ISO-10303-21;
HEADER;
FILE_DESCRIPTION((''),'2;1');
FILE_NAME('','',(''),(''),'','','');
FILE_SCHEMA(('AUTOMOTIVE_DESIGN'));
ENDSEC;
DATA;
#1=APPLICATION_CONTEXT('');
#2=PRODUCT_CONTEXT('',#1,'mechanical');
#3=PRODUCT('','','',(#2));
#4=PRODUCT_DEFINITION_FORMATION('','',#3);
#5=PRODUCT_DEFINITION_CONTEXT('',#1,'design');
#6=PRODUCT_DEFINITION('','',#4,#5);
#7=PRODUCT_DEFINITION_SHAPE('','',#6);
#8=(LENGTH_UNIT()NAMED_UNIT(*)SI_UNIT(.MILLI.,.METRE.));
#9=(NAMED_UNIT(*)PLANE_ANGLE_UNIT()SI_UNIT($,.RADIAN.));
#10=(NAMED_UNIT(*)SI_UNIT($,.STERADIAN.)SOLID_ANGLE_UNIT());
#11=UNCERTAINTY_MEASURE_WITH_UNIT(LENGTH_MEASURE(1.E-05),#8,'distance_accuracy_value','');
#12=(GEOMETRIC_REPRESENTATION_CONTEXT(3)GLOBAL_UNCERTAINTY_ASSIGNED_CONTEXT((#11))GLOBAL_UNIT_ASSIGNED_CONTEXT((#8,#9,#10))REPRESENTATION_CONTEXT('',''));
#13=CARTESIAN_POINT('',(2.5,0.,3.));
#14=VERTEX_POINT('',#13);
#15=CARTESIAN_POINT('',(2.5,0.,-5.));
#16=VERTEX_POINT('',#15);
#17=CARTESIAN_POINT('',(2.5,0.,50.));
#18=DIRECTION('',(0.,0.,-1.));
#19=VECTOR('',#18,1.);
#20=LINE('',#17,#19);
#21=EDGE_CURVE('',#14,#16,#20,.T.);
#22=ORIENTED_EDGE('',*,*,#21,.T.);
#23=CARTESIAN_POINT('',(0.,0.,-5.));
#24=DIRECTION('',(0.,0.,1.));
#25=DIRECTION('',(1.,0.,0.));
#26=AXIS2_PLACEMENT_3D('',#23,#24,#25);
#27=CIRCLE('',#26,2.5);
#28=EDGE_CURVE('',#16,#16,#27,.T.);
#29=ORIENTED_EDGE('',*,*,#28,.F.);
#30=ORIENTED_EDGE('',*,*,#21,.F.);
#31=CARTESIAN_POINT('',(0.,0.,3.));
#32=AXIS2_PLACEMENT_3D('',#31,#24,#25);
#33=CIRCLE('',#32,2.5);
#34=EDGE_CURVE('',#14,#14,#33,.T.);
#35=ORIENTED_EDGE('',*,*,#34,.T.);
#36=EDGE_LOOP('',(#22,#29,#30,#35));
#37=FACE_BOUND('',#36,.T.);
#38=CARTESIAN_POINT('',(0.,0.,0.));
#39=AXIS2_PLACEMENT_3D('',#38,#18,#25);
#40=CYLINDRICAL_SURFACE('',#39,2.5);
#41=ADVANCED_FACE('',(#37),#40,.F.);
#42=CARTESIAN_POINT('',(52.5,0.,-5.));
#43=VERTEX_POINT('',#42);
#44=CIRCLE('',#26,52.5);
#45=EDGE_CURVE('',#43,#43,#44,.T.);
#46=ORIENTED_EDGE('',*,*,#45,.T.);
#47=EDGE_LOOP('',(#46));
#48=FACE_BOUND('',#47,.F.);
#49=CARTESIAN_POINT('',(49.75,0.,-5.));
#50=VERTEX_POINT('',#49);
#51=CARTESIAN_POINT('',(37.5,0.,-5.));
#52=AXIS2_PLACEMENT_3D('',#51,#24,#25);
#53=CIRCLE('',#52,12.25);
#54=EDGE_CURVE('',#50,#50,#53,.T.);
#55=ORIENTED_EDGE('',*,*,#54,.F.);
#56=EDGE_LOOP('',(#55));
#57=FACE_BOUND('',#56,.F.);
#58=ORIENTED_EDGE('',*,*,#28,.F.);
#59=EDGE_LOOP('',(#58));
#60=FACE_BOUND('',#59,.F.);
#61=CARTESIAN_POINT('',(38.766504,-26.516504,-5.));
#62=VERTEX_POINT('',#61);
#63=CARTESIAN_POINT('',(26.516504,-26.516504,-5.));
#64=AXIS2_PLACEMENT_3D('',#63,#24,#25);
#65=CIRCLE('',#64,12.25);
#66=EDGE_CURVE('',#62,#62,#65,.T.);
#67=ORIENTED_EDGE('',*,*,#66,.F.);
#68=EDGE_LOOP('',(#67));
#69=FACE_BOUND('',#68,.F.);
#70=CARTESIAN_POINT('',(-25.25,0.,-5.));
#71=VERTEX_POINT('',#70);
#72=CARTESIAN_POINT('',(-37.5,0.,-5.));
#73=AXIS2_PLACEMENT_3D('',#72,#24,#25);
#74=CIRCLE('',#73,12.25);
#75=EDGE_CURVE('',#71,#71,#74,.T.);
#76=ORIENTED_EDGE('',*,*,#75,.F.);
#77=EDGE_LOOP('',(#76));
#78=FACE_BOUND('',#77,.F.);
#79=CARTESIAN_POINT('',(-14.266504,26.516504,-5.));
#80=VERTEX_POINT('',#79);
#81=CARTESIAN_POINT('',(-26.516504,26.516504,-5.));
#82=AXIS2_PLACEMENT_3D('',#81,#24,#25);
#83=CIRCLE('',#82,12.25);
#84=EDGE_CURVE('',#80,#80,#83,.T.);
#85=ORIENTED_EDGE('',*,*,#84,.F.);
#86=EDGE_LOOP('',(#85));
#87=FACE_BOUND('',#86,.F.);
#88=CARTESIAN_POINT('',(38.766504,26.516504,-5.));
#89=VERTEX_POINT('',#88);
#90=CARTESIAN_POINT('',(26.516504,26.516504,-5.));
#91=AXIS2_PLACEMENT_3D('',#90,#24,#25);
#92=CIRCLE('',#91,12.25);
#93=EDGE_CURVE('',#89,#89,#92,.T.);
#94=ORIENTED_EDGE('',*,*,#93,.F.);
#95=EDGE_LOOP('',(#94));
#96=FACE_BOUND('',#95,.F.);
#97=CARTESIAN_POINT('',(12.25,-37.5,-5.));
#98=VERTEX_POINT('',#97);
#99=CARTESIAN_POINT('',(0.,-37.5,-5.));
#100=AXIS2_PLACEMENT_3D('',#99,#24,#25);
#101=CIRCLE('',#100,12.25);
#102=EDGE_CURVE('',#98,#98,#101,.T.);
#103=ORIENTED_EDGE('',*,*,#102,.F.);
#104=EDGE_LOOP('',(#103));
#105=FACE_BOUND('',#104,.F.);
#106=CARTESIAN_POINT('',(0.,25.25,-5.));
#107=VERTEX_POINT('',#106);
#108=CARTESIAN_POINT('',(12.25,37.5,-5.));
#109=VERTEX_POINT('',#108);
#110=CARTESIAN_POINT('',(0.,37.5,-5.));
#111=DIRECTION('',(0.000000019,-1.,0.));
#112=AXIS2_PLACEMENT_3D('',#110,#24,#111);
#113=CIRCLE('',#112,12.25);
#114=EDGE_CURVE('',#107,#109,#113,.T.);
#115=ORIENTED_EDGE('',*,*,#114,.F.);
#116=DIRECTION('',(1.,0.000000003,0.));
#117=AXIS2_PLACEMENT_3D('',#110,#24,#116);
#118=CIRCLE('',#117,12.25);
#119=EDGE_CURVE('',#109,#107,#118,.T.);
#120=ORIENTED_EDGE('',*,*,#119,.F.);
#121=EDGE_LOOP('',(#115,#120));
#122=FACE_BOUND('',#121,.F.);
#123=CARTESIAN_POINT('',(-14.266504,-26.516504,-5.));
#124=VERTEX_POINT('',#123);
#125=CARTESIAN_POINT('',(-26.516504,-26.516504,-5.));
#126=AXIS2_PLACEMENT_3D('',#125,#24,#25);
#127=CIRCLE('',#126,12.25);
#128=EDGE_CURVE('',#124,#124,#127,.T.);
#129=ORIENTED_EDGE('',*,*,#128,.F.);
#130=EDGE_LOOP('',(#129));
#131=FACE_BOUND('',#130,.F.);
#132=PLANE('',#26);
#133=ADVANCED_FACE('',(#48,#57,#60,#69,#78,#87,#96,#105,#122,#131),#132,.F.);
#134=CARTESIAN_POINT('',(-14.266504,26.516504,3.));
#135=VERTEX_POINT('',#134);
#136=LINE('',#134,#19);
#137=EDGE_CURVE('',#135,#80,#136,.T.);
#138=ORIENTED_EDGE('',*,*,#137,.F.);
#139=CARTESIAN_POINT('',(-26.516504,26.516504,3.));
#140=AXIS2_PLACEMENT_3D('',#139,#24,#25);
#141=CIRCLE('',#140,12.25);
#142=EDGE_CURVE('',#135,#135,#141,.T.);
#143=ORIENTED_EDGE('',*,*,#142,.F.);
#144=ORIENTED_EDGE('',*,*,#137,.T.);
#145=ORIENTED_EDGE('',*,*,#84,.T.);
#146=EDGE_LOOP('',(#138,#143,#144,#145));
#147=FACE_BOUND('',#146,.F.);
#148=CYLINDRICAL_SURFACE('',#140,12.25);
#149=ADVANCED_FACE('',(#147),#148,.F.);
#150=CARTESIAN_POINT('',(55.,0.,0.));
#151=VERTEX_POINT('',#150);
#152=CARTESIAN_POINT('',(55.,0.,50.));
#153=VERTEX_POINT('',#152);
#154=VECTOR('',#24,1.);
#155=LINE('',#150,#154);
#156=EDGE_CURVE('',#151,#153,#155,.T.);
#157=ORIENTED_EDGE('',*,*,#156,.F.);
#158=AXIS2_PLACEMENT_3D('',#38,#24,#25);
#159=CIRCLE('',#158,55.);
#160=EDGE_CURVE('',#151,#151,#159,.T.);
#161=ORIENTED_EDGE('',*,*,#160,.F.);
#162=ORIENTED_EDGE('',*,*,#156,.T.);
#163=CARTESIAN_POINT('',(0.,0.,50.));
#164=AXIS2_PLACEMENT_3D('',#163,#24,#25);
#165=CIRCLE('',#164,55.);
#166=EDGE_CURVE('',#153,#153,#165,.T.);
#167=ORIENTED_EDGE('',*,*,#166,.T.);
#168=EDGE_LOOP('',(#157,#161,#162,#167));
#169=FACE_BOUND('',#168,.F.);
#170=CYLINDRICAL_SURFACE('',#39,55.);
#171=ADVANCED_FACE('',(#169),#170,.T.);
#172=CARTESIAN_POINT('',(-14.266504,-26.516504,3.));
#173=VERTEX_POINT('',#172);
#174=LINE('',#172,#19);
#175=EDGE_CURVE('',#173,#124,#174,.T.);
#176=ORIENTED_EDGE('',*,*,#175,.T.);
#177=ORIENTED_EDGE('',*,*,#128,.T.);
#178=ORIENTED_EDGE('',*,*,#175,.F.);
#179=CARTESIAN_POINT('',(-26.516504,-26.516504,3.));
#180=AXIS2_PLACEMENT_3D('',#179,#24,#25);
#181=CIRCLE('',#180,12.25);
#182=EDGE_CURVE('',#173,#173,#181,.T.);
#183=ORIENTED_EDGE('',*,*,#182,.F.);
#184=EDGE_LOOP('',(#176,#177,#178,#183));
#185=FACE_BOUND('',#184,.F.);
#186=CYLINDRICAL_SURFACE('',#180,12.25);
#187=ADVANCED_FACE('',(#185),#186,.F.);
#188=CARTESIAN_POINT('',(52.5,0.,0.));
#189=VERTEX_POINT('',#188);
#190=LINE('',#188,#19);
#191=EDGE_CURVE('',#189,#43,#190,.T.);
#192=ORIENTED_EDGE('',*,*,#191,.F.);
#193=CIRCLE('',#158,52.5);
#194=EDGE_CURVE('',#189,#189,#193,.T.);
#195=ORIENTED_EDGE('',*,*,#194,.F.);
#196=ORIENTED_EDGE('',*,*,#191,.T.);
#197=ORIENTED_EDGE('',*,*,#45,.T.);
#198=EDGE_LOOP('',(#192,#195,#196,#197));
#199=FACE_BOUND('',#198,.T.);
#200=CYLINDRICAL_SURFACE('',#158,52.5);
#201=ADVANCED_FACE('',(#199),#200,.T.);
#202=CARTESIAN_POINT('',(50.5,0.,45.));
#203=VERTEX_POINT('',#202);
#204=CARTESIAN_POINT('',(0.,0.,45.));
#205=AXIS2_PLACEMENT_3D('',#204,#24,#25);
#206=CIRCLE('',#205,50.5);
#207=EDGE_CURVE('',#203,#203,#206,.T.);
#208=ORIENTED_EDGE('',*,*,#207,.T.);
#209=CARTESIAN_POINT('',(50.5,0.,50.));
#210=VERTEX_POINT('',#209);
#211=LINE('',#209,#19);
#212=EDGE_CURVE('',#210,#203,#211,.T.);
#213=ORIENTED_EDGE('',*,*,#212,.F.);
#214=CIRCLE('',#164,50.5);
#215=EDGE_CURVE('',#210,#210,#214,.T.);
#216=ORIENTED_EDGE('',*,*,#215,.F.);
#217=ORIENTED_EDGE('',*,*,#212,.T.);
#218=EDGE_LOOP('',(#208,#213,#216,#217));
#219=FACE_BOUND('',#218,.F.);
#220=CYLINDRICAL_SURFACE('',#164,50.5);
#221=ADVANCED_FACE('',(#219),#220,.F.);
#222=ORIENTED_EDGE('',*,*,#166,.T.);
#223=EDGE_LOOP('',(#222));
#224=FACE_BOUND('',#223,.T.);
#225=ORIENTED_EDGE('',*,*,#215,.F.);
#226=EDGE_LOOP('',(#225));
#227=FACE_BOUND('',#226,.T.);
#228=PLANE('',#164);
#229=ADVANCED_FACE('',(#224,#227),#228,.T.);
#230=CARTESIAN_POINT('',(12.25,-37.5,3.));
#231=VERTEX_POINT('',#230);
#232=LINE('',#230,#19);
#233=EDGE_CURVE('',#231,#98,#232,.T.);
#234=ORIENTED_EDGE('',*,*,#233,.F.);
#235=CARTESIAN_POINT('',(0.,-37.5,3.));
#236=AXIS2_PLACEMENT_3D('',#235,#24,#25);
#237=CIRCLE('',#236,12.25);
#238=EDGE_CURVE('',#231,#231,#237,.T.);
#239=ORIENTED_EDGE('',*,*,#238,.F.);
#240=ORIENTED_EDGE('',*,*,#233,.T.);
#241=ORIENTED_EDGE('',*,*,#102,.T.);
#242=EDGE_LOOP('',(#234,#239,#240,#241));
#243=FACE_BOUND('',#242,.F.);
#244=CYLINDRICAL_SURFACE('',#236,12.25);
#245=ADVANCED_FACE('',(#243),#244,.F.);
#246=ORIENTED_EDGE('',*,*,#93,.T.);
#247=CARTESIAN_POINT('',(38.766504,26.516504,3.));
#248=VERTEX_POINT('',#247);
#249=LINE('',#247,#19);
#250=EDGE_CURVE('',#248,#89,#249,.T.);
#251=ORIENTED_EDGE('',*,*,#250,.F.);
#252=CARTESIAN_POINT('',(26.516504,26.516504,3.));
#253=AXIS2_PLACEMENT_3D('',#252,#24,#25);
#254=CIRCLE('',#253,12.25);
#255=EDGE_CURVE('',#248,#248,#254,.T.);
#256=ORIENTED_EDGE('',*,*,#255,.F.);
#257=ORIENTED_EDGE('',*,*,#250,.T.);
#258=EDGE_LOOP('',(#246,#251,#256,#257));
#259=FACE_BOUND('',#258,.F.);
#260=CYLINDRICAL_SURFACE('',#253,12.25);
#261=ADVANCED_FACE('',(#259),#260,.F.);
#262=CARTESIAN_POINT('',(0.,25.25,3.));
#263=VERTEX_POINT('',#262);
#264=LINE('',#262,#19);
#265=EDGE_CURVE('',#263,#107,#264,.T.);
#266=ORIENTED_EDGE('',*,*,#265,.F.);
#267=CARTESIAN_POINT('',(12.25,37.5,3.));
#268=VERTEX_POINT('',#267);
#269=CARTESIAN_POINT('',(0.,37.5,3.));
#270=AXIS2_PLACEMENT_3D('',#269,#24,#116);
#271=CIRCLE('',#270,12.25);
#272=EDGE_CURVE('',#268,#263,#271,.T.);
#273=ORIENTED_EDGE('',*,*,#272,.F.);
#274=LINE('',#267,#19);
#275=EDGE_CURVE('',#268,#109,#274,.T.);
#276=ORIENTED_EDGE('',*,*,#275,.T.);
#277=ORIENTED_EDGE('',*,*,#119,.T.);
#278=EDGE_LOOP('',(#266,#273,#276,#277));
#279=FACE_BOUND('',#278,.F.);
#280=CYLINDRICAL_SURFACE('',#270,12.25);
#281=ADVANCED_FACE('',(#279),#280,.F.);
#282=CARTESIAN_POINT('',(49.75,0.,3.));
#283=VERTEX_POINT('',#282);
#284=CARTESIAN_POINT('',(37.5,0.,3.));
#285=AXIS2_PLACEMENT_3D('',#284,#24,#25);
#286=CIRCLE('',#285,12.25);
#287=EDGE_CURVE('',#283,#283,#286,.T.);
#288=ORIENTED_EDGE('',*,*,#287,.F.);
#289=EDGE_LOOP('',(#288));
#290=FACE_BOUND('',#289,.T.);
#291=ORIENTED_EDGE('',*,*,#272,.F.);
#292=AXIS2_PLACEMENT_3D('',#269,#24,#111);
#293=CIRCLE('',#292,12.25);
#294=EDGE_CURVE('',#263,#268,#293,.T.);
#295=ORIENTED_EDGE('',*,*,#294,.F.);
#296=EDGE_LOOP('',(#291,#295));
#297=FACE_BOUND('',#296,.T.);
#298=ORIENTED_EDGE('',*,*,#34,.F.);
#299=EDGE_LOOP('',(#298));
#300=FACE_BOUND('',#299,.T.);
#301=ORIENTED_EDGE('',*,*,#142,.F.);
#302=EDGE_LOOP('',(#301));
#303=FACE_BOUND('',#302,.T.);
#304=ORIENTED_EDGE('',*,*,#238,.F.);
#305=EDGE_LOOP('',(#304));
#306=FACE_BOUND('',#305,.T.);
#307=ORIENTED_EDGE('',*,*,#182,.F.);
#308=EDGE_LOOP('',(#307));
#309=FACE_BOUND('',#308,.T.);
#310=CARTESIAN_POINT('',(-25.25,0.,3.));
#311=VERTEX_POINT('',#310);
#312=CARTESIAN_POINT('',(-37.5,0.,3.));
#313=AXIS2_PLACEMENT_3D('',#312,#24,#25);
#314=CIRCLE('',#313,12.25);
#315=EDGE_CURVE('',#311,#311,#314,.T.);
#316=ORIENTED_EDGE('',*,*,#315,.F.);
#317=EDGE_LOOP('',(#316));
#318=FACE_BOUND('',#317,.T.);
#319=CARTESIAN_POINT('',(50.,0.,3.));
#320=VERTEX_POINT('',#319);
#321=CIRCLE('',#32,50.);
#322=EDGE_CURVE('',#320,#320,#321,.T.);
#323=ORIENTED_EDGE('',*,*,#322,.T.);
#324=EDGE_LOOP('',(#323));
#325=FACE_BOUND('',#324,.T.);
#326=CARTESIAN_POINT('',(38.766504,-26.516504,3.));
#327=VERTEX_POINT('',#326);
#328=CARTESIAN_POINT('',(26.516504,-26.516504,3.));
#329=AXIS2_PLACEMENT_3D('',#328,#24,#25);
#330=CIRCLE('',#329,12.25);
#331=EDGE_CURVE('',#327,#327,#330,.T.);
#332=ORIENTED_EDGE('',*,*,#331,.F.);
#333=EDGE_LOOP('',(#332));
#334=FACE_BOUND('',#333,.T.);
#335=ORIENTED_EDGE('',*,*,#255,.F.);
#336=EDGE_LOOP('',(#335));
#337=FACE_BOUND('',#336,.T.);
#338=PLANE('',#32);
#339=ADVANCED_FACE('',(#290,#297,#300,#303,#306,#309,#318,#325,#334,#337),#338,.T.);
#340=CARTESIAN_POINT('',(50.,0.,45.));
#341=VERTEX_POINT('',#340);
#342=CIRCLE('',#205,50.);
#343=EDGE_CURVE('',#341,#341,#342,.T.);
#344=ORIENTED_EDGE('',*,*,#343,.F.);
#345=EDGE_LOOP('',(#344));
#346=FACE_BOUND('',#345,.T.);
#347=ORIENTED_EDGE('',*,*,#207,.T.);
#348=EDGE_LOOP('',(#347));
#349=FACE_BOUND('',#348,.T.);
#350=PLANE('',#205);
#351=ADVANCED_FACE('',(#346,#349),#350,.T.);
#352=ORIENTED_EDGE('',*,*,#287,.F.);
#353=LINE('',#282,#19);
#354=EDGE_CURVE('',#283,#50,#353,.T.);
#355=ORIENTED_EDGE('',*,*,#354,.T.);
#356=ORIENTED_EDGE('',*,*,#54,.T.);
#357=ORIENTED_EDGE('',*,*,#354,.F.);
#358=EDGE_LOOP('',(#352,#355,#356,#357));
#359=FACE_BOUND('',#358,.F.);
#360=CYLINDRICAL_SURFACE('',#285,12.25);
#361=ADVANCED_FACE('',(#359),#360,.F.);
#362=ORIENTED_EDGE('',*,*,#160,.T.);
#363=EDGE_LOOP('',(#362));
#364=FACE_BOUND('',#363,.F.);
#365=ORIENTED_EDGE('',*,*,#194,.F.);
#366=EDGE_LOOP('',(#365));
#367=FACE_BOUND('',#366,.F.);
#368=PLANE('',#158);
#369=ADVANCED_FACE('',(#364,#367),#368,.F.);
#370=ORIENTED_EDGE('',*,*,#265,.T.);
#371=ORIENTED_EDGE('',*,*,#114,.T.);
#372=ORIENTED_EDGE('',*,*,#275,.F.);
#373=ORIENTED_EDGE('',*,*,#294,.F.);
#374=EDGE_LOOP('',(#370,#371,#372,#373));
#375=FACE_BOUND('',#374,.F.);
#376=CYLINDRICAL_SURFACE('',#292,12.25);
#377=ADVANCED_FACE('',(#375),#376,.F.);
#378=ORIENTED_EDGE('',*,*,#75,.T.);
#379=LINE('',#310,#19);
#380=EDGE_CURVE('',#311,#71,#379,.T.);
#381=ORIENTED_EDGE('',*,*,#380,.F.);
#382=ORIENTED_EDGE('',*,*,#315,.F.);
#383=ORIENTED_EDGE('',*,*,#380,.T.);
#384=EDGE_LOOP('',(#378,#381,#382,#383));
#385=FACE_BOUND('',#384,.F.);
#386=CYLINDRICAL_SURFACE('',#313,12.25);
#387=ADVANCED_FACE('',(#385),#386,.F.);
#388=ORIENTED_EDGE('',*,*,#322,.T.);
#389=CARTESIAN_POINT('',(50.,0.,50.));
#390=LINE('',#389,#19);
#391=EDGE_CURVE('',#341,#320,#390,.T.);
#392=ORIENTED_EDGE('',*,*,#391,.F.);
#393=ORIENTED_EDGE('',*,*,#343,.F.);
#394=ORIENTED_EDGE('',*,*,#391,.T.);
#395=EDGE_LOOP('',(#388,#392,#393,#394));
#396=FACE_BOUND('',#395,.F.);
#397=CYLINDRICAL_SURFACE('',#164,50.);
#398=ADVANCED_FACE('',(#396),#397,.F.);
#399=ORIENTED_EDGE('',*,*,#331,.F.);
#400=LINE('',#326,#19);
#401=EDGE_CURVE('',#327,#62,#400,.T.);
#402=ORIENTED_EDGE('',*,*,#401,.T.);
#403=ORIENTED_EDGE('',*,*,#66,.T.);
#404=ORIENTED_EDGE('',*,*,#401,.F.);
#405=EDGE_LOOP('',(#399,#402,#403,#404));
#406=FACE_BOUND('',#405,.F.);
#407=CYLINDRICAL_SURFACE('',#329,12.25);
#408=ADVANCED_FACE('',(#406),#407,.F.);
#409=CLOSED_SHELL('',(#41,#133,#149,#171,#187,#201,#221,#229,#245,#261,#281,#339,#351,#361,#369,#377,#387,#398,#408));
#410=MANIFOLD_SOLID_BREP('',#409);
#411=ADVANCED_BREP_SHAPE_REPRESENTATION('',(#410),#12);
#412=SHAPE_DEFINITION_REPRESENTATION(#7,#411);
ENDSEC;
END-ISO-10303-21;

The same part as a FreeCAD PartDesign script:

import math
import FreeCAD as App
import Part
import Sketcher
from FreeCAD import Vector

doc = App.newDocument("Part")
body = doc.addObject("PartDesign::Body", "Body")

sketch1 = doc.addObject("Sketcher::SketchObject", "Sketch")
body.addObject(sketch1)
sketch1.AttachmentSupport = (doc.XY_Plane, [""])
sketch1.MapMode = "FlatFace"
sketch1.addGeometry([
    Part.Circle(Vector(0, 0, 0), Vector(0, 0, 1), 52.5),
    Part.Circle(Vector(0, 0, 0), Vector(0, 0, 1), 2.5),
], False)
sketch1.addConstraint([
    Sketcher.Constraint("Coincident", 0, 3, -1, 1),
    Sketcher.Constraint("Coincident", 1, 3, -1, 1),
    Sketcher.Constraint("Diameter", 0, 105.0),
    Sketcher.Constraint("Diameter", 1, 5.0),
])
pad1 = doc.addObject("PartDesign::Pad", "Pad")
body.addObject(pad1)
pad1.Profile = sketch1
pad1.Length = 5
pad1.Reversed = True

sketch2 = doc.addObject("Sketcher::SketchObject", "Sketch001")
body.addObject(sketch2)
sketch2.AttachmentSupport = (doc.XY_Plane, [""])
sketch2.MapMode = "FlatFace"
sketch2.addGeometry([
    Part.Circle(Vector(0, 0, 0), Vector(0, 0, 1), 55),
    Part.Circle(Vector(0, 0, 0), Vector(0, 0, 1), 2.5),
], False)
sketch2.addConstraint([
    Sketcher.Constraint("Coincident", 0, 3, -1, 1),
    Sketcher.Constraint("Coincident", 1, 3, -1, 1),
    Sketcher.Constraint("Diameter", 0, 110.0),
    Sketcher.Constraint("Diameter", 1, 5.0),
])
pad2 = doc.addObject("PartDesign::Pad", "Pad001")
body.addObject(pad2)
pad2.Profile = sketch2
pad2.Length = 50

sketch3 = doc.addObject("Sketcher::SketchObject", "Sketch002")
body.addObject(sketch3)
sketch3.AttachmentSupport = (doc.XY_Plane, [""])
sketch3.MapMode = "FlatFace"
sketch3.AttachmentOffset = App.Placement(Vector(0, 0, 50), App.Rotation())
sketch3.addGeometry([
    Part.Circle(Vector(0, 0, 0), Vector(0, 0, 1), 50),
    Part.Circle(Vector(0, 0, 0), Vector(0, 0, 1), 2.5),
], False)
sketch3.addConstraint([
    Sketcher.Constraint("Coincident", 0, 3, -1, 1),
    Sketcher.Constraint("Coincident", 1, 3, -1, 1),
    Sketcher.Constraint("Diameter", 0, 100.0),
    Sketcher.Constraint("Diameter", 1, 5.0),
])
pocket1 = doc.addObject("PartDesign::Pocket", "Pocket")
body.addObject(pocket1)
pocket1.Profile = sketch3
pocket1.Length = 47

sketch4 = doc.addObject("Sketcher::SketchObject", "Sketch003")
body.addObject(sketch4)
sketch4.AttachmentSupport = (doc.XY_Plane, [""])
sketch4.MapMode = "FlatFace"
sketch4.AttachmentOffset = App.Placement(Vector(0, 0, 3), App.Rotation())
sketch4.addGeometry([
    Part.ArcOfCircle(Part.Circle(Vector(0, 38, 0), Vector(0, 0, 1), 12), math.radians(-90), math.radians(0)),
    Part.ArcOfCircle(Part.Circle(Vector(0, 37, 0), Vector(0, 0, 1), 12), math.radians(0), math.radians(270)),
    Part.Circle(Vector(-27, 27, 0), Vector(0, 0, 1), 12),
    Part.Circle(Vector(-38, 0, 0), Vector(0, 0, 1), 12),
    Part.Circle(Vector(-27, -27, 0), Vector(0, 0, 1), 12),
    Part.Circle(Vector(0, -38, 0), Vector(0, 0, 1), 12),
    Part.Circle(Vector(27, -27, 0), Vector(0, 0, 1), 12),
    Part.Circle(Vector(27, 27, 0), Vector(0, 0, 1), 12),
    Part.Circle(Vector(38, 0, 0), Vector(0, 0, 1), 12),
], False)
sketch4.addConstraint([
    Sketcher.Constraint("Tangent", 0, 1, 1, 2),
    Sketcher.Constraint("Coincident", 1, 1, 0, 2),
    Sketcher.Constraint("Equal", 1, 2),
    Sketcher.Constraint("Equal", 2, 3),
    Sketcher.Constraint("Equal", 3, 4),
    Sketcher.Constraint("Equal", 4, 5),
    Sketcher.Constraint("Equal", 5, 6),
    Sketcher.Constraint("Equal", 6, 7),
    Sketcher.Constraint("Equal", 7, 8),
    Sketcher.Constraint("Symmetric", 0, 3, 5, 3, -1, 1),
    Sketcher.Constraint("Symmetric", 2, 3, 6, 3, -1, 1),
    Sketcher.Constraint("Symmetric", 4, 3, 7, 3, -1, 1),
    Sketcher.Constraint("Symmetric", 3, 3, 8, 3, -1, 1),
    Sketcher.Constraint("Symmetric", 4, 3, 6, 3, -2),
    Sketcher.Constraint("PointOnObject", 0, 3, -2),
    Sketcher.Constraint("PointOnObject", 3, 3, -1),
    Sketcher.Constraint("PointOnObject", 0, 1, -2),
    Sketcher.Constraint("Horizontal", 0, 3, 1, 1),
    Sketcher.Constraint("Diameter", 2, 24.5),
    Sketcher.Constraint("DistanceY", 5, 3, 1, 3, 75.0),
    Sketcher.Constraint("DistanceX", 3, 3, -1, 1, 37.5),
    Sketcher.Constraint("DistanceY", 4, 3, 2, 3, 53.033008),
    Sketcher.Constraint("DistanceX", 4, 3, 6, 3, 53.033008),
])
pocket2 = doc.addObject("PartDesign::Pocket", "Pocket001")
body.addObject(pocket2)
pocket2.Profile = sketch4
pocket2.Length = 8

sketch5 = doc.addObject("Sketcher::SketchObject", "Sketch004")
body.addObject(sketch5)
sketch5.AttachmentSupport = (doc.XY_Plane, [""])
sketch5.MapMode = "FlatFace"
sketch5.AttachmentOffset = App.Placement(Vector(0, 0, 50), App.Rotation())
sketch5.addGeometry([
    Part.Circle(Vector(0, 0, 0), Vector(0, 0, 1), 50),
    Part.Circle(Vector(0, 0, 0), Vector(0, 0, 1), 50),
], False)
sketch5.addConstraint([
    Sketcher.Constraint("Coincident", 0, 3, -1, 1),
    Sketcher.Constraint("Coincident", 1, 3, -1, 1),
    Sketcher.Constraint("Diameter", 0, 101.0),
    Sketcher.Constraint("Diameter", 1, 100.0),
])
pocket3 = doc.addObject("PartDesign::Pocket", "Pocket002")
body.addObject(pocket3)
pocket3.Profile = sketch5
pocket3.Length = 5

doc.recompute()
